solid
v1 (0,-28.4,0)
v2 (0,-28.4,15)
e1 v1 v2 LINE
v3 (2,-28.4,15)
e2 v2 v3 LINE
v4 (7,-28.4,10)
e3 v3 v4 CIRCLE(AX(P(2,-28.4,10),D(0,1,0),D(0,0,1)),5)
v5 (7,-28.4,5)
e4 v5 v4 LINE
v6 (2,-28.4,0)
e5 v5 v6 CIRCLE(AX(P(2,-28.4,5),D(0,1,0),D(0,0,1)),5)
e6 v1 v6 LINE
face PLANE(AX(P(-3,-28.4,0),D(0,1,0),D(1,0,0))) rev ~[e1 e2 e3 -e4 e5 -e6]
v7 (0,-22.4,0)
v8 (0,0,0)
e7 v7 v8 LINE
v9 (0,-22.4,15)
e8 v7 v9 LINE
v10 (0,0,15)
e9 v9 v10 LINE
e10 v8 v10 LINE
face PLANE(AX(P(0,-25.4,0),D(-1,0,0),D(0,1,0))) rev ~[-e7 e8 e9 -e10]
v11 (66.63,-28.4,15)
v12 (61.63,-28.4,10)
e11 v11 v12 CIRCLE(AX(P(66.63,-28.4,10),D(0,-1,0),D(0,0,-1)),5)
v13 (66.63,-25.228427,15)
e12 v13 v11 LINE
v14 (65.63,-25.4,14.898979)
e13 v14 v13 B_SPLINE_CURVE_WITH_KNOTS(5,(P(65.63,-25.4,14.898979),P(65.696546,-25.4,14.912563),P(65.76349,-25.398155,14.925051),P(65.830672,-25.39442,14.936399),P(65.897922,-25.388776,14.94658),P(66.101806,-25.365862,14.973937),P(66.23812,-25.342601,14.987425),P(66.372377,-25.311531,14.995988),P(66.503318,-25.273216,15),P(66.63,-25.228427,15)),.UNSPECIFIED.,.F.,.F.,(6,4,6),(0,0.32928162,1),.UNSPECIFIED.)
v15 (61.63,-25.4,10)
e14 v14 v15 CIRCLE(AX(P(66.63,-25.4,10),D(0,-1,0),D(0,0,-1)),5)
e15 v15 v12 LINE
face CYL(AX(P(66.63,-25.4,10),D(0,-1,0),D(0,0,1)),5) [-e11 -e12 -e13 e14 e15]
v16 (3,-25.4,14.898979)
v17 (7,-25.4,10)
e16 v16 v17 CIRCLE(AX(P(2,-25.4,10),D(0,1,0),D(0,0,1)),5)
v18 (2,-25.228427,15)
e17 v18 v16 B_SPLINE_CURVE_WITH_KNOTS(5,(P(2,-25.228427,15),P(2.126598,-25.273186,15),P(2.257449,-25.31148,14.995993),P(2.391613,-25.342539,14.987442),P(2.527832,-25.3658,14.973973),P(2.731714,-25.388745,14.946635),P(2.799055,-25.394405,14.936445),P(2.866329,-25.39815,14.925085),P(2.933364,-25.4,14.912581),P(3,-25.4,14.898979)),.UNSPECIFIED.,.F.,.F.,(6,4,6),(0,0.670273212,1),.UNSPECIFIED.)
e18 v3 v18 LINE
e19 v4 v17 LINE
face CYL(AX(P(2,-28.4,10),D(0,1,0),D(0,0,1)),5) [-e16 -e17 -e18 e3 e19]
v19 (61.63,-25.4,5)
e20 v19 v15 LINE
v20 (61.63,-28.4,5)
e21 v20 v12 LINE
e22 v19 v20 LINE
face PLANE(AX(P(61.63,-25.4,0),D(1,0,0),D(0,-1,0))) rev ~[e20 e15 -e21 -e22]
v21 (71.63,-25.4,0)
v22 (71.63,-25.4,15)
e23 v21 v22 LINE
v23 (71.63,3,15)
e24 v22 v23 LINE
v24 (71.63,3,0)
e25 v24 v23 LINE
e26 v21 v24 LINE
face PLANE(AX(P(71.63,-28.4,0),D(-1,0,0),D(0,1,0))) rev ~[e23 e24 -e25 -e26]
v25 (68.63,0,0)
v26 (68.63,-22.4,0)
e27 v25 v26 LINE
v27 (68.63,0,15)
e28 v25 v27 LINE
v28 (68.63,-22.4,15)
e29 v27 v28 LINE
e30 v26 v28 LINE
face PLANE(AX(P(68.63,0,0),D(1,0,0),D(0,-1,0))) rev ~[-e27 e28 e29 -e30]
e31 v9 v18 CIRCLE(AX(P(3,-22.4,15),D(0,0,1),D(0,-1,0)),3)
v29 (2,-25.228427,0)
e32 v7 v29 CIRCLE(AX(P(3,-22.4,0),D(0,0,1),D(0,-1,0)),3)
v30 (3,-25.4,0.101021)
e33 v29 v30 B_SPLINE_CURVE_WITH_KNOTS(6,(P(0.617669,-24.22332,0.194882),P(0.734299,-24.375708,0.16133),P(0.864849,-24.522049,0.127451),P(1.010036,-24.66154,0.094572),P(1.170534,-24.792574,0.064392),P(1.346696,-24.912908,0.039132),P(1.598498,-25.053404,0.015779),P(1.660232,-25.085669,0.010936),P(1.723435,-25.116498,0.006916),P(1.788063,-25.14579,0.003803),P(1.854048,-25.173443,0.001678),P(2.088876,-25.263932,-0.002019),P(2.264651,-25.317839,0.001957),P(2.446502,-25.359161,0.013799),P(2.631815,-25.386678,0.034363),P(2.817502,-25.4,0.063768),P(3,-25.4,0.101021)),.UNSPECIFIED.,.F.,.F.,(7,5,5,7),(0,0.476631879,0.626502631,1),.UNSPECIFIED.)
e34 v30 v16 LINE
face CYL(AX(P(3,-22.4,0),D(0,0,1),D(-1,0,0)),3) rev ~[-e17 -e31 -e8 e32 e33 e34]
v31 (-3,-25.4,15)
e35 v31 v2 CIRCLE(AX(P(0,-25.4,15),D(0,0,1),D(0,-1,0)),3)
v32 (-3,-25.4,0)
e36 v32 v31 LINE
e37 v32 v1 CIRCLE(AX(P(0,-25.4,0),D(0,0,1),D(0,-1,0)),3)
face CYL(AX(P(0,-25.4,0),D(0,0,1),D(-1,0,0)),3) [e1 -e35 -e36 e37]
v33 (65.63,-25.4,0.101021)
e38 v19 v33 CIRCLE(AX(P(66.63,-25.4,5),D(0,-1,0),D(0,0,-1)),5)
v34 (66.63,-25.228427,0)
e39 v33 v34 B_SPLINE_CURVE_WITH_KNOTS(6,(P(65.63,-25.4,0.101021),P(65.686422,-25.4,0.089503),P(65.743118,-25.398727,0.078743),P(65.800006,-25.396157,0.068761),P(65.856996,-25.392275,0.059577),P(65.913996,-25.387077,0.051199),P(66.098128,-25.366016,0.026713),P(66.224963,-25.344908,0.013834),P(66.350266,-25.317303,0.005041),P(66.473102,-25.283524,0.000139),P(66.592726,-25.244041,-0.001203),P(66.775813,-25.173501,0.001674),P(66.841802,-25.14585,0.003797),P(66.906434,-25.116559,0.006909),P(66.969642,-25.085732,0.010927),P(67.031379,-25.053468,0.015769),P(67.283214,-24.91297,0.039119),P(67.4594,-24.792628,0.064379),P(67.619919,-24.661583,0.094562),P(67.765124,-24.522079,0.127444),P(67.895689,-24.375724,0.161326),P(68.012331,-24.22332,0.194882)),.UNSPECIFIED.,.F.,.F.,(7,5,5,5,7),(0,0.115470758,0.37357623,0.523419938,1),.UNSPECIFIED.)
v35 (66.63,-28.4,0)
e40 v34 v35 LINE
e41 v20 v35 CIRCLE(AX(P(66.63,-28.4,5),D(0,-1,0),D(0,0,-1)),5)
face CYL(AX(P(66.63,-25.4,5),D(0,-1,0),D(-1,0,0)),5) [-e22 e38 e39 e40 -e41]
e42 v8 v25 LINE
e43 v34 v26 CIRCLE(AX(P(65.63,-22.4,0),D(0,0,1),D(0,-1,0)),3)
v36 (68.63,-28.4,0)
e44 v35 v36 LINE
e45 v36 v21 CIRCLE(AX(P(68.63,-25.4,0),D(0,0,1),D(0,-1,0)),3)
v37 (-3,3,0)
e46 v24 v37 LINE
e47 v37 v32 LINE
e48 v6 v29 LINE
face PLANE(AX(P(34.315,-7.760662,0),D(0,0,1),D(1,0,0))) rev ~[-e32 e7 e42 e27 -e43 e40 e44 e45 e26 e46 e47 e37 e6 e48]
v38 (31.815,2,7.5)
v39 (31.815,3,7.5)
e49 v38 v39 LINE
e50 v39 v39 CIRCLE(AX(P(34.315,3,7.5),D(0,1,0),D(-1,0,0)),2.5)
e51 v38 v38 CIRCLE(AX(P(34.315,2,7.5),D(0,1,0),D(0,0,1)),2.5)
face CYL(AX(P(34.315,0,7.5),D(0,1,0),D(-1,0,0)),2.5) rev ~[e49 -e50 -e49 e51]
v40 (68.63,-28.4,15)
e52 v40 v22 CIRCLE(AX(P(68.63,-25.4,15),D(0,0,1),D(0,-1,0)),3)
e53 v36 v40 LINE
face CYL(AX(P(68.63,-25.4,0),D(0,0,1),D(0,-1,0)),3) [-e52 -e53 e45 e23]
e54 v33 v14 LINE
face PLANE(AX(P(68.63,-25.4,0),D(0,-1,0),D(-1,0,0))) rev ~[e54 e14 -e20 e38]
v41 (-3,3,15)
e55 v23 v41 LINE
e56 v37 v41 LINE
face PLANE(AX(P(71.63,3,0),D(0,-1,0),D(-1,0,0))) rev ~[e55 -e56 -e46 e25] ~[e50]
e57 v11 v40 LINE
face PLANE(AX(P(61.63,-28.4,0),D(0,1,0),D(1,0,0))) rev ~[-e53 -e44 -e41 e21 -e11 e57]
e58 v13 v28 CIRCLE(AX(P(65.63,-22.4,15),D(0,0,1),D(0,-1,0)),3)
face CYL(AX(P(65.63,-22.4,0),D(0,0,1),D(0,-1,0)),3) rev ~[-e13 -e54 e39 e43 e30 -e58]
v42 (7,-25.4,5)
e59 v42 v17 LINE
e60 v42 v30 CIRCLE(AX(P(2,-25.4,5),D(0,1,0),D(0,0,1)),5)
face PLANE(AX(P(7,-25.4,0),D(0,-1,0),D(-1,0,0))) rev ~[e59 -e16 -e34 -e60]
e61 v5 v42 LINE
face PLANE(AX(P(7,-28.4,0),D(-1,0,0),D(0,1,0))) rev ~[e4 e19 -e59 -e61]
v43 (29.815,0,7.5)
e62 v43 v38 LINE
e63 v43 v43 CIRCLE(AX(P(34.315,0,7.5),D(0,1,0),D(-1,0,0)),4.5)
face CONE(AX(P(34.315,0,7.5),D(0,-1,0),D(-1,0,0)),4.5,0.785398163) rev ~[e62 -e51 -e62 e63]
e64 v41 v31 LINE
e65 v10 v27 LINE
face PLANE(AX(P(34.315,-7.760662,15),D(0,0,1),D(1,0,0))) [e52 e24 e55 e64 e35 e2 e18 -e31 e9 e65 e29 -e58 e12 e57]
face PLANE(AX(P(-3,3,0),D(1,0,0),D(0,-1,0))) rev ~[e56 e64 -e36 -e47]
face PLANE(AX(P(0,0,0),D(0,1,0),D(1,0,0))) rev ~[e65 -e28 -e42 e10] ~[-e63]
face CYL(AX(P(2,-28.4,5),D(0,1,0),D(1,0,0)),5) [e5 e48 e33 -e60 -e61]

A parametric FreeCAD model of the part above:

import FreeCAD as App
import Part
import Sketcher

V = App.Vector
Q = App.Units.Quantity


def edges_at(feature, points):
    """Names of the edges that pass closest to the given points."""
    edges = feature.Shape.Edges
    near = lambda p: min(range(len(edges)), key=lambda i: edges[i].distToShape(Part.Vertex(*p))[0])
    return sorted({f"Edge{near(p) + 1}" for p in points})

doc = App.newDocument("Part")
body = doc.addObject("PartDesign::Body", "Body")

sketch1 = body.newObject("Sketcher::SketchObject", "Sketch")
sketch1.AttachmentSupport = (doc.getObject("XY_Plane"), [""])
sketch1.MapMode = "FlatFace"
sketch1.addGeometry([
    Part.LineSegment(V(0, -25.4, 0), V(0, 0, 0)),
    Part.LineSegment(V(0, 0, 0), V(68.6, 0, 0)),
    Part.LineSegment(V(68.6, 0, 0), V(68.6, -25.4, 0)),
    Part.LineSegment(V(68.6, -25.4, 0), V(61.6, -25.4, 0)),
    Part.LineSegment(V(61.6, -25.4, 0), V(61.6, -28.4, 0)),
    Part.LineSegment(V(61.6, -28.4, 0), V(71.6, -28.4, 0)),
    Part.LineSegment(V(71.6, -28.4, 0), V(71.6, 3, 0)),
    Part.LineSegment(V(71.6, 3, 0), V(-3, 3, 0)),
    Part.LineSegment(V(-3, 3, 0), V(-3, -28.4, 0)),
    Part.LineSegment(V(-3, -28.4, 0), V(7, -28.4, 0)),
    Part.LineSegment(V(7, -28.4, 0), V(7, -25.4, 0)),
    Part.LineSegment(V(7, -25.4, 0), V(0, -25.4, 0)),
], False)
sketch1.addConstraint([
    Sketcher.Constraint("Coincident", 0, 2, 1, 1),
    Sketcher.Constraint("Coincident", 1, 2, 2, 1),
    Sketcher.Constraint("Coincident", 2, 2, 3, 1),
    Sketcher.Constraint("Coincident", 3, 2, 4, 1),
    Sketcher.Constraint("Coincident", 4, 2, 5, 1),
    Sketcher.Constraint("Coincident", 5, 2, 6, 1),
    Sketcher.Constraint("Coincident", 6, 2, 7, 1),
    Sketcher.Constraint("Coincident", 7, 2, 8, 1),
    Sketcher.Constraint("Coincident", 8, 2, 9, 1),
    Sketcher.Constraint("Coincident", 9, 2, 10, 1),
    Sketcher.Constraint("Coincident", 10, 2, 11, 1),
    Sketcher.Constraint("Coincident", 11, 2, 0, 1),
    Sketcher.Constraint("Vertical", 0),
    Sketcher.Constraint("Horizontal", 1),
    Sketcher.Constraint("Vertical", 2),
    Sketcher.Constraint("Horizontal", 3),
    Sketcher.Constraint("Vertical", 4),
    Sketcher.Constraint("Horizontal", 5),
    Sketcher.Constraint("Vertical", 6),
    Sketcher.Constraint("Horizontal", 7),
    Sketcher.Constraint("Vertical", 8),
    Sketcher.Constraint("Horizontal", 9),
    Sketcher.Constraint("Vertical", 10),
    Sketcher.Constraint("Horizontal", 11),
    Sketcher.Constraint("Coincident", 0, 2, -1, 1),
    Sketcher.Constraint("Horizontal", 5, 2, 8, 2),
    Sketcher.Constraint("Horizontal", 3, 2, 10, 2),
    Sketcher.Constraint("Equal", 5, 9),
    Sketcher.Constraint("Equal", 3, 11),
    Sketcher.Constraint("DistanceX", 3, 2, 3, 1, Q("7 mm")),
    Sketcher.Constraint("DistanceX", 5, 1, 5, 2, Q("10 mm")),
    Sketcher.Constraint("DistanceY", 4, 2, 4, 1, Q("3 mm")),
    Sketcher.Constraint("DistanceY", 0, 1, 0, 2, Q("25.4 mm")),
    Sketcher.Constraint("DistanceY", 6, 1, 6, 2, Q("31.4 mm")),
    Sketcher.Constraint("DistanceX", 1, 1, 1, 2, Q("68.63 mm")),
])
pad1 = body.newObject("PartDesign::Pad", "Pad")
pad1.Profile = sketch1
pad1.Length = 15

sketch2 = body.newObject("Sketcher::SketchObject", "Sketch001")
sketch2.AttachmentSupport = (doc.getObject("XZ_Plane"), [""])
sketch2.MapMode = "FlatFace"
sketch2.addGeometry(Part.Circle(V(34.3, 7.5, 0), V(0, 0, 1), 2.5), False)
sketch2.addConstraint([
    Sketcher.Constraint("Diameter", 0, Q("5 mm")),
    Sketcher.Constraint("DistanceY", -1, 1, 0, 3, Q("7.5 mm")),
    Sketcher.Constraint("DistanceX", -1, 1, 0, 3, Q("34.315 mm")),
])
doc.recompute()
hole = body.newObject("PartDesign::Hole", "Hole")
hole.Profile = sketch2
hole.ThreadType = "None"
hole.Diameter = 5
hole.DepthType = "Dimension"
hole.Depth = 11
hole.DrillPoint = "Flat"
hole.HoleCutType = "Countersink"
hole.HoleCutDiameter = 9
hole.HoleCutCountersinkAngle = 90
doc.recompute()

fillet = body.newObject("PartDesign::Fillet", "Fillet")
fillet.Base = (hole, edges_at(hole, [
    (7, -26.9, 15),
    (61.63, -26.9, 15),
    (7, -26.9, 0),
    (61.63, -26.9, 0),
]))
fillet.Radius = 5
doc.recompute()

fillet2 = body.newObject("PartDesign::Fillet", "Fillet001")
fillet2.Base = (fillet, edges_at(fillet, [
    (0, -25.4, 7.5),
    (-3, -28.4, 7.5),
    (71.63, -28.4, 7.5),
    (68.63, -25.4, 7.5),
]))
fillet2.Radius = 3

doc.recompute()
